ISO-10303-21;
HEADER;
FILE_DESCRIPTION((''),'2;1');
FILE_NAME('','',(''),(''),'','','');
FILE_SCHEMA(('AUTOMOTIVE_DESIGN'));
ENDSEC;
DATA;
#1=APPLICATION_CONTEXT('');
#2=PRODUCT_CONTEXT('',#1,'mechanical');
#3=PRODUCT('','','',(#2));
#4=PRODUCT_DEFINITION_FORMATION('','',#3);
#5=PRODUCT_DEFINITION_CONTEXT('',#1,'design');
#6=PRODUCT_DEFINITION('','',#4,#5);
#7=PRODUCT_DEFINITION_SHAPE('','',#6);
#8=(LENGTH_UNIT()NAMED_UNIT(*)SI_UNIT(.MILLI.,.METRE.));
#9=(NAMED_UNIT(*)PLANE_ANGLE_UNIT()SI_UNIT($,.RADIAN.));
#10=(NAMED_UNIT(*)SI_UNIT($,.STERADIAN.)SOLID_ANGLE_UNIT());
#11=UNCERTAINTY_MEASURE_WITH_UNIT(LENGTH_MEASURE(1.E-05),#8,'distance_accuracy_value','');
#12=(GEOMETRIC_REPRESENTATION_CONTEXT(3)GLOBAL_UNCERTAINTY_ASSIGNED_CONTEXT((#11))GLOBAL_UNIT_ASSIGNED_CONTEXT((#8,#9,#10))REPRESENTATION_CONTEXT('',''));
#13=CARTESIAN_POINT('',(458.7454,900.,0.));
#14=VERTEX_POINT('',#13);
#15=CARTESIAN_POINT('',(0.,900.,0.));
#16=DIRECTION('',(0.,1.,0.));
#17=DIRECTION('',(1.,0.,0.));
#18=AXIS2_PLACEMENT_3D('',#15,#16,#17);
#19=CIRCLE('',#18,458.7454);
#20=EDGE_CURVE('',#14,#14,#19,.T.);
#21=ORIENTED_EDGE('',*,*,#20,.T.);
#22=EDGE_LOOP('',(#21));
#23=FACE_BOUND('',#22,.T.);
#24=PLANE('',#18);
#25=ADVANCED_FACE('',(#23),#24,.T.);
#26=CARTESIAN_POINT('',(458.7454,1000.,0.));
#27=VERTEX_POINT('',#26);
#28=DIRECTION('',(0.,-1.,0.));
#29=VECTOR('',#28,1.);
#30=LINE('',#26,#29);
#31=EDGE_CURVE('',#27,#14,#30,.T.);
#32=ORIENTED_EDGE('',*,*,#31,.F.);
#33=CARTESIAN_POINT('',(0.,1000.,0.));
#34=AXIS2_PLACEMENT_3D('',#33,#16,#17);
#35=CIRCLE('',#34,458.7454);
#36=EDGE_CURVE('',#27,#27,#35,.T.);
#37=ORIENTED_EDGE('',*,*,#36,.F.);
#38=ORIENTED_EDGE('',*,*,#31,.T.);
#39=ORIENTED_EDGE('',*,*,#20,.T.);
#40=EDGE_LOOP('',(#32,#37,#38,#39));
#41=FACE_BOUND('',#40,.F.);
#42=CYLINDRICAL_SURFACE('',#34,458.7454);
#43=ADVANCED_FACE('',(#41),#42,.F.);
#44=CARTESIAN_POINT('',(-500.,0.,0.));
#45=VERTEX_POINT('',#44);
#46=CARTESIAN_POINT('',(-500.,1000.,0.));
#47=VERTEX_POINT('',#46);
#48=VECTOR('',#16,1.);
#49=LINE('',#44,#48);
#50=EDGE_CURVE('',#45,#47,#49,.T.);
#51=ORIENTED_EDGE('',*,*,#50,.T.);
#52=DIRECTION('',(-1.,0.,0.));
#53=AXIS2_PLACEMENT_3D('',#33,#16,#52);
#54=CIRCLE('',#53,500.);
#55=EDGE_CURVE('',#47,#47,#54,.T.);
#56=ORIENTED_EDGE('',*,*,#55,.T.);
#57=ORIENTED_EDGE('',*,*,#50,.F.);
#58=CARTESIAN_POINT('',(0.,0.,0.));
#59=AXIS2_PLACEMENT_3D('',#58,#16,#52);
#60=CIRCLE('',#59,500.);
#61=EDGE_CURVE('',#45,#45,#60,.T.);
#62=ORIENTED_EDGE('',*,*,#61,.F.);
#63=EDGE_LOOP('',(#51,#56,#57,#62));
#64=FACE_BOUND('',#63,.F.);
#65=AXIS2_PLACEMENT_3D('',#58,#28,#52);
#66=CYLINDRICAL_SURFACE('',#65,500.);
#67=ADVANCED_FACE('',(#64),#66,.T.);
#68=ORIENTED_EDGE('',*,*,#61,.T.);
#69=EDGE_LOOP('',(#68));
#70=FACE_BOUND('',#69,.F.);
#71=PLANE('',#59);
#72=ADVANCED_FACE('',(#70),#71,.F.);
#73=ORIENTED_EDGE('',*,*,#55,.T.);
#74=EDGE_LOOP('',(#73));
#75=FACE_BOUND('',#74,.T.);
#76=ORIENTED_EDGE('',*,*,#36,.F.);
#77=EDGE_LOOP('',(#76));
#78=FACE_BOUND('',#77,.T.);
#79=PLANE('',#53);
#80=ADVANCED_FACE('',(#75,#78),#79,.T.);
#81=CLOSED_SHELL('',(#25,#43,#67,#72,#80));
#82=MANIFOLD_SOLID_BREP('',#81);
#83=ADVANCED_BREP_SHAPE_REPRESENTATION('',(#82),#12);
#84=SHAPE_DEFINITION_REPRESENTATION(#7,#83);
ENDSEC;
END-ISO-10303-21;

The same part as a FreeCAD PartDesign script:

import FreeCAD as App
import Part
import Sketcher

V = App.Vector

doc = App.newDocument("Part")
body = doc.addObject("PartDesign::Body", "Body")

# Sketch on XZ plane
sketch1 = doc.addObject("Sketcher::SketchObject", "Sketch")
body.addObject(sketch1)
sketch1.AttachmentSupport = (doc.XZ_Plane, [""])
sketch1.MapMode = "FlatFace"
sketch1.addGeometry(Part.Circle(V(0, 0, 0), V(0, 0, 1), 500), False)
sketch1.addConstraint([
    Sketcher.Constraint("Coincident", 0, 3, -1, 1),
    Sketcher.Constraint("Diameter", 0, 1000.0),
])
pad1 = doc.addObject("PartDesign::Pad", "Pad")
body.addObject(pad1)
pad1.Profile = sketch1
pad1.Length = 1000
pad1.Reversed = True

# Sketch on XZ plane
sketch2 = doc.addObject("Sketcher::SketchObject", "Sketch001")
body.addObject(sketch2)
sketch2.AttachmentSupport = (doc.XZ_Plane, [""])
sketch2.MapMode = "FlatFace"
sketch2.AttachmentOffset = App.Placement(V(0, 0, -1000), App.Rotation())
sketch2.addGeometry(Part.Circle(V(0, 0, 0), V(0, 0, 1), 459), False)
sketch2.addConstraint([
    Sketcher.Constraint("Coincident", 0, 3, -1, 1),
    Sketcher.Constraint("Diameter", 0, 917.4908),
])
pocket1 = doc.addObject("PartDesign::Pocket", "Pocket")
body.addObject(pocket1)
pocket1.Profile = sketch2
pocket1.Length = 100
pocket1.Reversed = True

doc.recompute()
